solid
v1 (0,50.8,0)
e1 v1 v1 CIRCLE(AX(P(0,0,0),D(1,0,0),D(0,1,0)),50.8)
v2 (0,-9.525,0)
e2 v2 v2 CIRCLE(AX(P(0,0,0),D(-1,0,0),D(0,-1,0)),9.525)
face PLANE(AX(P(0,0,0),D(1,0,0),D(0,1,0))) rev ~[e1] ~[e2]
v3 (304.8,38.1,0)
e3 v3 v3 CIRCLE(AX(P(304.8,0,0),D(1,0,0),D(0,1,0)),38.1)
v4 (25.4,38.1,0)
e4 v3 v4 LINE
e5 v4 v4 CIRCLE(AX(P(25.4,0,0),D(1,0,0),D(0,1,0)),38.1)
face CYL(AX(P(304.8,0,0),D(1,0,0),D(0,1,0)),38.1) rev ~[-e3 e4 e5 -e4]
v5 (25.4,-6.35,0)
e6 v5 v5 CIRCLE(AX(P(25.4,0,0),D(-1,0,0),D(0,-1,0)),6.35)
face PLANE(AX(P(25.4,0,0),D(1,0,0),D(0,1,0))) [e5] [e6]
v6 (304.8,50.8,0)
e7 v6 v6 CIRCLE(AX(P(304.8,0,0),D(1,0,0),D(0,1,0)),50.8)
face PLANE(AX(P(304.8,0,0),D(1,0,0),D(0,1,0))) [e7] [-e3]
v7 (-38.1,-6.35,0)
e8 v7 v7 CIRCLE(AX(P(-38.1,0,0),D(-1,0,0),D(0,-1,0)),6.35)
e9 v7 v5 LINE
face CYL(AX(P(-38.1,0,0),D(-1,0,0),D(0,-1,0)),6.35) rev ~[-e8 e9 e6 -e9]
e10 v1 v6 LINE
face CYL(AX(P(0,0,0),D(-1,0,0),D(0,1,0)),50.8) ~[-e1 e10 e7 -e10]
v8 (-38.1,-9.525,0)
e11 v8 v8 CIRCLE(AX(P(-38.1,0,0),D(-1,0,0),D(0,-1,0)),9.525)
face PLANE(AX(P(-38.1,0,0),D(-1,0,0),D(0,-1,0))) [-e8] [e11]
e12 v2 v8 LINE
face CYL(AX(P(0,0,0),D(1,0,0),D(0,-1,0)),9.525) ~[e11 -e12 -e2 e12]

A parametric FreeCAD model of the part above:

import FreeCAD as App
import Part
import Sketcher

V = App.Vector
Q = App.Units.Quantity

doc = App.newDocument("Part")
body = doc.addObject("PartDesign::Body", "Body")

# Sketch on YZ plane
sketch1 = body.newObject("Sketcher::SketchObject", "Sketch")
sketch1.AttachmentSupport = (doc.getObject("YZ_Plane"), [""])
sketch1.MapMode = "FlatFace"
sketch1.addGeometry(Part.Circle(V(0, 0, 0), V(0, 0, 1), 51), False)
sketch1.addConstraint(Sketcher.Constraint("Coincident", 0, 3, -1, 1))
sketch1.addConstraint(Sketcher.Constraint("Diameter", 0, Q("4 in")))
pad1 = body.newObject("PartDesign::Pad", "Pad")
pad1.Profile = sketch1
pad1.Length = Q("12 in")

# Sketch on YZ plane
sketch2 = body.newObject("Sketcher::SketchObject", "Sketch001")
sketch2.AttachmentSupport = (doc.getObject("YZ_Plane"), [""])
sketch2.MapMode = "FlatFace"
sketch2.AttachmentOffset = App.Placement(V(0, 0, 12 * 25.4), App.Rotation())
sketch2.addGeometry(Part.Circle(V(0, 0, 0), V(0, 0, 1), 38), False)
sketch2.addConstraint(Sketcher.Constraint("Coincident", 0, 3, -1, 1))
sketch2.addConstraint(Sketcher.Constraint("Diameter", 0, Q("3 in")))
pocket1 = body.newObject("PartDesign::Pocket", "Pocket")
pocket1.Profile = sketch2
pocket1.Length = Q("11 in")

# Sketch on YZ plane
sketch3 = body.newObject("Sketcher::SketchObject", "Sketch002")
sketch3.AttachmentSupport = (doc.getObject("YZ_Plane"), [""])
sketch3.MapMode = "FlatFace"
sketch3.addGeometry(Part.Circle(V(0, 0, 0), V(0, 0, 1), 10), False)
sketch3.addConstraint(Sketcher.Constraint("Coincident", 0, 3, -1, 1))
sketch3.addConstraint(Sketcher.Constraint("Diameter", 0, Q("0.75 in")))
pad2 = body.newObject("PartDesign::Pad", "Pad001")
pad2.Profile = sketch3
pad2.Length = Q("1.5 in")
pad2.Reversed = True

# Sketch on YZ plane
sketch4 = body.newObject("Sketcher::SketchObject", "Sketch003")
sketch4.AttachmentSupport = (doc.getObject("YZ_Plane"), [""])
sketch4.MapMode = "FlatFace"
sketch4.AttachmentOffset = App.Placement(V(0, 0, -1.5 * 25.4), App.Rotation())
sketch4.addGeometry(Part.Circle(V(0, 0, 0), V(0, 0, 1), 6), False)
sketch4.addConstraint(Sketcher.Constraint("Coincident", 0, 3, -1, 1))
sketch4.addConstraint(Sketcher.Constraint("Diameter", 0, Q("0.5 in")))
pocket2 = body.newObject("PartDesign::Pocket", "Pocket001")
pocket2.Profile = sketch4
pocket2.Length = Q("3.62 in")
pocket2.Reversed = True

doc.recompute()
